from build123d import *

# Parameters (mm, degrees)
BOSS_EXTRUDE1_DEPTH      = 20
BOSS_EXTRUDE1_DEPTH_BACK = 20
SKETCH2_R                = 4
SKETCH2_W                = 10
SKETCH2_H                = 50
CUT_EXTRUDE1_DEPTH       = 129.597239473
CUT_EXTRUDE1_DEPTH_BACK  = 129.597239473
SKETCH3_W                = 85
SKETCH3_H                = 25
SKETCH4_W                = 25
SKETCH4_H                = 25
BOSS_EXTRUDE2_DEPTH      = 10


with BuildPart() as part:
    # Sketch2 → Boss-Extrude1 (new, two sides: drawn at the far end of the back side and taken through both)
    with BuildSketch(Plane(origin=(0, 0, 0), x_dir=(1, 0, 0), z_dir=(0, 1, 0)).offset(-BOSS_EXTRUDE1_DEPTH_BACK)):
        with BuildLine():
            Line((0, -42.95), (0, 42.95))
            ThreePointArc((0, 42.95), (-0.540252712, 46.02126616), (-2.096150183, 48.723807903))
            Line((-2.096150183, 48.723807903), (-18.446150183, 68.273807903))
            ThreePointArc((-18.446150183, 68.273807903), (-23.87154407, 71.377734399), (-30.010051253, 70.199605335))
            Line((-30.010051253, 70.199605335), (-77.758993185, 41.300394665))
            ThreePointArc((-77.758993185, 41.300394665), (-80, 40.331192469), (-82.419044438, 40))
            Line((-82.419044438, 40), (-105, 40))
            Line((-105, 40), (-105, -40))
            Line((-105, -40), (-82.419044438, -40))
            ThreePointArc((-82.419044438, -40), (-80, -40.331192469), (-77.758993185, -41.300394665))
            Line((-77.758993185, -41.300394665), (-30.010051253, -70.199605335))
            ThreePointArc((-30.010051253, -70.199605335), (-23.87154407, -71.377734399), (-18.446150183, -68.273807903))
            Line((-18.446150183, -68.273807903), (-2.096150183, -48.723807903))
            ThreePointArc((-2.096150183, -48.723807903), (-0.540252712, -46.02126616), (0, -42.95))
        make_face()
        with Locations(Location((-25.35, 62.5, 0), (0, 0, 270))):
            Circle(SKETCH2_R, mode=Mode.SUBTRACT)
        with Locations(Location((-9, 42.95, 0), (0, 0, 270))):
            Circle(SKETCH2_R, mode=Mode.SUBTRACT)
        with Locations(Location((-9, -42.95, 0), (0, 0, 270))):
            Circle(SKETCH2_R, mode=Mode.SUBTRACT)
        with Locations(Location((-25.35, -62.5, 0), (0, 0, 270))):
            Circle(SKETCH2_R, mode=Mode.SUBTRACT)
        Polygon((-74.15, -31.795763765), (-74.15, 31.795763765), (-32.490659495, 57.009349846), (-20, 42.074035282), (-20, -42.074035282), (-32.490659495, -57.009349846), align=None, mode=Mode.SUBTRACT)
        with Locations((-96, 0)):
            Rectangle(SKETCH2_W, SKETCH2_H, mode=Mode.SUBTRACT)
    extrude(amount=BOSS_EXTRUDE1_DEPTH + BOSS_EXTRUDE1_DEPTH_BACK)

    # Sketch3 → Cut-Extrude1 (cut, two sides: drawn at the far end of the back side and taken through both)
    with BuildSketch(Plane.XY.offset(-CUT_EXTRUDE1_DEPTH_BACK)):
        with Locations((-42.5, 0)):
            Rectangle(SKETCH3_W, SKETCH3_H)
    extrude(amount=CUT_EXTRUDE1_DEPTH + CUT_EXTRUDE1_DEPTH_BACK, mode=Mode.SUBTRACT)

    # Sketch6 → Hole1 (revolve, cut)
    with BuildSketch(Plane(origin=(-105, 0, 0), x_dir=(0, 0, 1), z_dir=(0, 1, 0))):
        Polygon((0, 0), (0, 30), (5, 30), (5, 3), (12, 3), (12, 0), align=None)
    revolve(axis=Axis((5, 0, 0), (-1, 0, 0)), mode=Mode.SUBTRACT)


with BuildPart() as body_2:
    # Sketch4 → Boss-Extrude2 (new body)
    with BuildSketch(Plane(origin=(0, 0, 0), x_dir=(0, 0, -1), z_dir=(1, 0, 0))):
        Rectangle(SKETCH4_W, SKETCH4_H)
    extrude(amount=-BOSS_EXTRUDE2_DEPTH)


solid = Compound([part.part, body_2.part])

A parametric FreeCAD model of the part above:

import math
import FreeCAD as App
import Part
import Sketcher

V = App.Vector

doc = App.newDocument("Part")
body = doc.addObject("PartDesign::Body", "Body")

# Sketch on XZ plane
sketch1 = body.newObject("Sketcher::SketchObject", "Sketch")
sketch1.AttachmentSupport = (doc.getObject("XZ_Plane"), [""])
sketch1.MapMode = "FlatFace"
sketch1.addGeometry(Part.LineSegment(V(0, 43, 0), V(0, -43, 0)), False)
sketch1.addGeometry(Part.ArcOfCircle(Part.Circle(V(-9, -43, 0), V(0, 0, 1), 9), math.radians(-40), math.radians(0)), False)
sketch1.addGeometry(Part.LineSegment(V(-2.1, -48.7, 0), V(-18.4, -68.3, 0)), False)
sketch1.addGeometry(Part.ArcOfCircle(Part.Circle(V(-25.4, -62.5, 0), V(0, 0, 1), 9), math.radians(-121), math.radians(-40)), False)
sketch1.addGeometry(Part.LineSegment(V(-30, -70.2, 0), V(-77.8, -41.3, 0)), False)
sketch1.addGeometry(Part.ArcOfCircle(Part.Circle(V(-82.4, -49, 0), V(0, 0, 1), 9), math.radians(59), math.radians(90)), False)
sketch1.addGeometry(Part.LineSegment(V(-82.4, -40, 0), V(-105, -40, 0)), False)
sketch1.addGeometry(Part.LineSegment(V(-105, -40, 0), V(-105, 40, 0)), False)
sketch1.addGeometry(Part.LineSegment(V(-105, 40, 0), V(-82.4, 40, 0)), False)
sketch1.addGeometry(Part.ArcOfCircle(Part.Circle(V(-82.4, 49, 0), V(0, 0, 1), 9), math.radians(-90), math.radians(-59)), False)
sketch1.addGeometry(Part.LineSegment(V(-77.8, 41.3, 0), V(-30, 70.2, 0)), False)
sketch1.addGeometry(Part.ArcOfCircle(Part.Circle(V(-25.4, 62.5, 0), V(0, 0, 1), 9), math.radians(40), math.radians(121)), False)
sketch1.addGeometry(Part.LineSegment(V(-18.4, 68.3, 0), V(-2.1, 48.7, 0)), False)
sketch1.addGeometry(Part.ArcOfCircle(Part.Circle(V(-9, 43, 0), V(0, 0, 1), 9), math.radians(0), math.radians(40)), False)
sketch1.addGeometry(Part.Circle(V(-25.4, 62.5, 0), V(0, 0, 1), 4), False)
sketch1.addGeometry(Part.Circle(V(-9, 43, 0), V(0, 0, 1), 4), False)
sketch1.addGeometry(Part.LineSegment(V(-91, 25, 0), V(-101, 25, 0)), False)
sketch1.addGeometry(Part.LineSegment(V(-101, 25, 0), V(-101, -25, 0)), False)
sketch1.addGeometry(Part.LineSegment(V(-101, -25, 0), V(-91, -25, 0)), False)
sketch1.addGeometry(Part.LineSegment(V(-91, -25, 0), V(-91, 25, 0)), False)
sketch1.addGeometry(Part.LineSegment(V(-32.5, 57, 0), V(-74.2, 31.8, 0)), False)
sketch1.addGeometry(Part.LineSegment(V(-74.2, 31.8, 0), V(-74.2, -31.8, 0)), False)
sketch1.addGeometry(Part.LineSegment(V(-74.2, -31.8, 0), V(-32.5, -57, 0)), False)
sketch1.addGeometry(Part.LineSegment(V(-32.5, -57, 0), V(-20, -42.1, 0)), False)
sketch1.addGeometry(Part.LineSegment(V(-20, -42.1, 0), V(-20, 42.1, 0)), False)
sketch1.addGeometry(Part.LineSegment(V(-20, 42.1, 0), V(-32.5, 57, 0)), False)
sketch1.addGeometry(Part.Circle(V(-9, -43, 0), V(0, 0, 1), 4), False)
sketch1.addGeometry(Part.Circle(V(-25.4, -62.5, 0), V(0, 0, 1), 4), False)
sketch1.addConstraint(Sketcher.Constraint("Tangent", 0, 2, 1, 2))
sketch1.addConstraint(Sketcher.Constraint("Tangent", 1, 1, 2, 1))
sketch1.addConstraint(Sketcher.Constraint("Tangent", 2, 2, 3, 2))
sketch1.addConstraint(Sketcher.Constraint("Tangent", 3, 1, 4, 1))
sketch1.addConstraint(Sketcher.Constraint("Tangent", 4, 2, 5, 1))
sketch1.addConstraint(Sketcher.Constraint("Tangent", 5, 2, 6, 1))
sketch1.addConstraint(Sketcher.Constraint("Coincident", 6, 2, 7, 1))
sketch1.addConstraint(Sketcher.Constraint("Coincident", 7, 2, 8, 1))
sketch1.addConstraint(Sketcher.Constraint("Tangent", 8, 2, 9, 1))
sketch1.addConstraint(Sketcher.Constraint("Tangent", 9, 2, 10, 1))
sketch1.addConstraint(Sketcher.Constraint("Tangent", 10, 2, 11, 2))
sketch1.addConstraint(Sketcher.Constraint("Tangent", 11, 1, 12, 1))
sketch1.addConstraint(Sketcher.Constraint("Tangent", 12, 2, 13, 2))
sketch1.addConstraint(Sketcher.Constraint("Tangent", 13, 1, 0, 1))
sketch1.addConstraint(Sketcher.Constraint("Coincident", 16, 2, 17, 1))
sketch1.addConstraint(Sketcher.Constraint("Coincident", 17, 2, 18, 1))
sketch1.addConstraint(Sketcher.Constraint("Coincident", 18, 2, 19, 1))
sketch1.addConstraint(Sketcher.Constraint("Coincident", 19, 2, 16, 1))
sketch1.addConstraint(Sketcher.Constraint("Coincident", 20, 2, 21, 1))
sketch1.addConstraint(Sketcher.Constraint("Coincident", 21, 2, 22, 1))
sketch1.addConstraint(Sketcher.Constraint("Coincident", 22, 2, 23, 1))
sketch1.addConstraint(Sketcher.Constraint("Coincident", 23, 2, 24, 1))
sketch1.addConstraint(Sketcher.Constraint("Coincident", 24, 2, 25, 1))
sketch1.addConstraint(Sketcher.Constraint("Coincident", 25, 2, 20, 1))
sketch1.addConstraint(Sketcher.Constraint("Vertical", 0))
sketch1.addConstraint(Sketcher.Constraint("Horizontal", 6))
sketch1.addConstraint(Sketcher.Constraint("Vertical", 7))
sketch1.addConstraint(Sketcher.Constraint("Horizontal", 8))
sketch1.addConstraint(Sketcher.Constraint("Horizontal", 16))
sketch1.addConstraint(Sketcher.Constraint("Vertical", 17))
sketch1.addConstraint(Sketcher.Constraint("Horizontal", 18))
sketch1.addConstraint(Sketcher.Constraint("Vertical", 19))
sketch1.addConstraint(Sketcher.Constraint("Vertical", 21))
sketch1.addConstraint(Sketcher.Constraint("Vertical", 24))
sketch1.addConstraint(Sketcher.Constraint("Coincident", 14, 3, 11, 3))
sketch1.addConstraint(Sketcher.Constraint("Coincident", 15, 3, 13, 3))
sketch1.addConstraint(Sketcher.Constraint("Coincident", 26, 3, 1, 3))
sketch1.addConstraint(Sketcher.Constraint("Coincident", 27, 3, 3, 3))
sketch1.addConstraint(Sketcher.Constraint("Equal", 1, 3))
sketch1.addConstraint(Sketcher.Constraint("Equal", 3, 5))
sketch1.addConstraint(Sketcher.Constraint("Equal", 5, 9))
sketch1.addConstraint(Sketcher.Constraint("Equal", 9, 11))
sketch1.addConstraint(Sketcher.Constraint("Equal", 11, 13))
sketch1.addConstraint(Sketcher.Constraint("Equal", 14, 15))
sketch1.addConstraint(Sketcher.Constraint("Equal", 15, 26))
sketch1.addConstraint(Sketcher.Constraint("Equal", 26, 27))
sketch1.addConstraint(Sketcher.Constraint("Symmetric", 0, 2, 13, 1, -1, 1))
sketch1.addConstraint(Sketcher.Constraint("Symmetric", 5, 3, 9, 3, -1))
sketch1.addConstraint(Sketcher.Constraint("Symmetric", 3, 3, 11, 3, -1))
sketch1.addConstraint(Sketcher.Constraint("Symmetric", 22, 2, 25, 2, -1))
sketch1.addConstraint(Sketcher.Constraint("Parallel", 10, 20))
sketch1.addConstraint(Sketcher.Constraint("Parallel", 4, 22))
sketch1.addConstraint(Sketcher.Constraint("Parallel", 2, 23))
sketch1.addConstraint(Sketcher.Constraint("Parallel", 12, 25))
sketch1.addConstraint(Sketcher.Constraint("Diameter", 14, 8.0))
sketch1.addConstraint(Sketcher.Constraint("Radius", 1, 9.0))
sketch1.addConstraint(Sketcher.Constraint("DistanceX", 16, 2, 16, 1, 10.0))
sketch1.addConstraint(Sketcher.Constraint("DistanceY", 7, 1, 7, 2, 80.0))
sketch1.addConstraint(Sketcher.Constraint("DistanceY", 17, 2, 17, 1, 50.0))
sketch1.addConstraint(Sketcher.Constraint("DistanceY", 0, 2, 0, 1, 85.9))
sketch1.addConstraint(Sketcher.Constraint("DistanceX", 6, 2, -1, 1, 105.0))
sketch1.addConstraint(Sketcher.Constraint("DistanceX", 16, 2, -1, 1, 101.0))
sketch1.addConstraint(Sketcher.Constraint("DistanceY", -1, 1, 16, 2, 25.0))
sketch1.addConstraint(Sketcher.Constraint("DistanceX", 23, 2, -1, 1, 20.0))
sketch1.addConstraint(Sketcher.Constraint("DistanceY", 3, 3, 11, 3, 125.0))
sketch1.addConstraint(Sketcher.Constraint("DistanceX", 3, 3, -1, 1, 25.35))
sketch1.addConstraint(Sketcher.Constraint("DistanceX", 20, 2, -1, 1, 74.15))
sketch1.addConstraint(Sketcher.Constraint("DistanceY", 24, 1, 24, 2, 84.148071))
sketch1.addConstraint(Sketcher.Constraint("DistanceX", 3, 1, 2, 2, 11.563901))
sketch1.addConstraint(Sketcher.Constraint("Distance", 20, 48.695232))
pad1 = body.newObject("PartDesign::Pad", "Pad")
pad1.Profile = sketch1
pad1.Type = "TwoLengths"
pad1.Length = 20
pad1.Length2 = 20
pad1.Reversed = True

# Sketch on XY plane
sketch2 = body.newObject("Sketcher::SketchObject", "Sketch001")
sketch2.AttachmentSupport = (doc.getObject("XY_Plane"), [""])
sketch2.MapMode = "FlatFace"
sketch2.addGeometry(Part.LineSegment(V(-85, 12, 0), V(-85, -12, 0)), False)
sketch2.addGeometry(Part.LineSegment(V(-85, -12, 0), V(0, -12, 0)), False)
sketch2.addGeometry(Part.LineSegment(V(0, -12, 0), V(0, 12, 0)), False)
sketch2.addGeometry(Part.LineSegment(V(0, 12, 0), V(-85, 12, 0)), False)
sketch2.addConstraint(Sketcher.Constraint("Coincident", 0, 2, 1, 1))
sketch2.addConstraint(Sketcher.Constraint("Coincident", 1, 2, 2, 1))
sketch2.addConstraint(Sketcher.Constraint("Coincident", 2, 2, 3, 1))
sketch2.addConstraint(Sketcher.Constraint("Coincident", 3, 2, 0, 1))
sketch2.addConstraint(Sketcher.Constraint("Vertical", 0))
sketch2.addConstraint(Sketcher.Constraint("Horizontal", 1))
sketch2.addConstraint(Sketcher.Constraint("Vertical", 2))
sketch2.addConstraint(Sketcher.Constraint("Horizontal", 3))
sketch2.addConstraint(Sketcher.Constraint("Symmetric", 1, 2, 2, 2, -1, 1))
sketch2.addConstraint(Sketcher.Constraint("DistanceX", 1, 1, 1, 2, 85.0))
sketch2.addConstraint(Sketcher.Constraint("DistanceY", 0, 2, 0, 1, 25.0))
pocket1 = body.newObject("PartDesign::Pocket", "Pocket")
pocket1.Profile = sketch2
pocket1.Type = "ThroughAll"
pocket1.Midplane = True

# Sketch on XZ plane
sketch3 = body.newObject("Sketcher::SketchObject", "Sketch002")
sketch3.AttachmentSupport = (doc.getObject("XZ_Plane"), [""])
sketch3.MapMode = "FlatFace"
sketch3.addGeometry(Part.LineSegment(V(-75, 0, 0), V(-105, 0, 0)), False)
sketch3.addGeometry(Part.LineSegment(V(-105, 0, 0), V(-105, 12, 0)), False)
sketch3.addGeometry(Part.LineSegment(V(-105, 12, 0), V(-102, 12, 0)), False)
sketch3.addGeometry(Part.LineSegment(V(-102, 12, 0), V(-102, 5, 0)), False)
sketch3.addGeometry(Part.LineSegment(V(-102, 5, 0), V(-75, 5, 0)), False)
sketch3.addGeometry(Part.LineSegment(V(-75, 5, 0), V(-75, 0, 0)), False)
sketch3.addConstraint(Sketcher.Constraint("Coincident", 0, 2, 1, 1))
sketch3.addConstraint(Sketcher.Constraint("Coincident", 1, 2, 2, 1))
sketch3.addConstraint(Sketcher.Constraint("Coincident", 2, 2, 3, 1))
sketch3.addConstraint(Sketcher.Constraint("Coincident", 3, 2, 4, 1))
sketch3.addConstraint(Sketcher.Constraint("Coincident", 4, 2, 5, 1))
sketch3.addConstraint(Sketcher.Constraint("Coincident", 5, 2, 0, 1))
sketch3.addConstraint(Sketcher.Constraint("Horizontal", 0))
sketch3.addConstraint(Sketcher.Constraint("Vertical", 1))
sketch3.addConstraint(Sketcher.Constraint("Horizontal", 2))
sketch3.addConstraint(Sketcher.Constraint("Vertical", 3))
sketch3.addConstraint(Sketcher.Constraint("Horizontal", 4))
sketch3.addConstraint(Sketcher.Constraint("Vertical", 5))
sketch3.addConstraint(Sketcher.Constraint("PointOnObject", 0, 2, -1))
sketch3.addConstraint(Sketcher.Constraint("DistanceX", 0, 2, 0, 1, 30.0))
sketch3.addConstraint(Sketcher.Constraint("DistanceX", 2, 1, 2, 2, 3.0))
sketch3.addConstraint(Sketcher.Constraint("DistanceY", 1, 1, 1, 2, 12.0))
sketch3.addConstraint(Sketcher.Constraint("DistanceY", 3, 2, 3, 1, 7.0))
sketch3.addConstraint(Sketcher.Constraint("DistanceX", 0, 2, -1, 1, 105.0))
groove = body.newObject("PartDesign::Groove", "Groove")
groove.Profile = sketch3
groove.ReferenceAxis = (sketch3, ["H_Axis"])
groove.Angle = 360
body2 = doc.addObject("PartDesign::Body", "Body001")

# Sketch on YZ plane
sketch4 = body2.newObject("Sketcher::SketchObject", "Sketch003")
sketch4.AttachmentSupport = (doc.getObject("YZ_Plane001"), [""])
sketch4.MapMode = "FlatFace"
sketch4.addGeometry(Part.LineSegment(V(12, 12, 0), V(-12, 12, 0)), False)
sketch4.addGeometry(Part.LineSegment(V(-12, 12, 0), V(-12, -12, 0)), False)
sketch4.addGeometry(Part.LineSegment(V(-12, -12, 0), V(12, -12, 0)), False)
sketch4.addGeometry(Part.LineSegment(V(12, -12, 0), V(12, 12, 0)), False)
sketch4.addConstraint(Sketcher.Constraint("Coincident", 0, 2, 1, 1))
sketch4.addConstraint(Sketcher.Constraint("Coincident", 1, 2, 2, 1))
sketch4.addConstraint(Sketcher.Constraint("Coincident", 2, 2, 3, 1))
sketch4.addConstraint(Sketcher.Constraint("Coincident", 3, 2, 0, 1))
sketch4.addConstraint(Sketcher.Constraint("Horizontal", 0))
sketch4.addConstraint(Sketcher.Constraint("Vertical", 1))
sketch4.addConstraint(Sketcher.Constraint("Horizontal", 2))
sketch4.addConstraint(Sketcher.Constraint("Vertical", 3))
sketch4.addConstraint(Sketcher.Constraint("Symmetric", 0, 2, 2, 2, -1, 1))
sketch4.addConstraint(Sketcher.Constraint("Equal", 2, 1))
sketch4.addConstraint(Sketcher.Constraint("DistanceX", 0, 2, 0, 1, 25.0))
pad2 = body2.newObject("PartDesign::Pad", "Pad001")
pad2.Profile = sketch4
pad2.Length = 10
pad2.Reversed = True

doc.recompute()
